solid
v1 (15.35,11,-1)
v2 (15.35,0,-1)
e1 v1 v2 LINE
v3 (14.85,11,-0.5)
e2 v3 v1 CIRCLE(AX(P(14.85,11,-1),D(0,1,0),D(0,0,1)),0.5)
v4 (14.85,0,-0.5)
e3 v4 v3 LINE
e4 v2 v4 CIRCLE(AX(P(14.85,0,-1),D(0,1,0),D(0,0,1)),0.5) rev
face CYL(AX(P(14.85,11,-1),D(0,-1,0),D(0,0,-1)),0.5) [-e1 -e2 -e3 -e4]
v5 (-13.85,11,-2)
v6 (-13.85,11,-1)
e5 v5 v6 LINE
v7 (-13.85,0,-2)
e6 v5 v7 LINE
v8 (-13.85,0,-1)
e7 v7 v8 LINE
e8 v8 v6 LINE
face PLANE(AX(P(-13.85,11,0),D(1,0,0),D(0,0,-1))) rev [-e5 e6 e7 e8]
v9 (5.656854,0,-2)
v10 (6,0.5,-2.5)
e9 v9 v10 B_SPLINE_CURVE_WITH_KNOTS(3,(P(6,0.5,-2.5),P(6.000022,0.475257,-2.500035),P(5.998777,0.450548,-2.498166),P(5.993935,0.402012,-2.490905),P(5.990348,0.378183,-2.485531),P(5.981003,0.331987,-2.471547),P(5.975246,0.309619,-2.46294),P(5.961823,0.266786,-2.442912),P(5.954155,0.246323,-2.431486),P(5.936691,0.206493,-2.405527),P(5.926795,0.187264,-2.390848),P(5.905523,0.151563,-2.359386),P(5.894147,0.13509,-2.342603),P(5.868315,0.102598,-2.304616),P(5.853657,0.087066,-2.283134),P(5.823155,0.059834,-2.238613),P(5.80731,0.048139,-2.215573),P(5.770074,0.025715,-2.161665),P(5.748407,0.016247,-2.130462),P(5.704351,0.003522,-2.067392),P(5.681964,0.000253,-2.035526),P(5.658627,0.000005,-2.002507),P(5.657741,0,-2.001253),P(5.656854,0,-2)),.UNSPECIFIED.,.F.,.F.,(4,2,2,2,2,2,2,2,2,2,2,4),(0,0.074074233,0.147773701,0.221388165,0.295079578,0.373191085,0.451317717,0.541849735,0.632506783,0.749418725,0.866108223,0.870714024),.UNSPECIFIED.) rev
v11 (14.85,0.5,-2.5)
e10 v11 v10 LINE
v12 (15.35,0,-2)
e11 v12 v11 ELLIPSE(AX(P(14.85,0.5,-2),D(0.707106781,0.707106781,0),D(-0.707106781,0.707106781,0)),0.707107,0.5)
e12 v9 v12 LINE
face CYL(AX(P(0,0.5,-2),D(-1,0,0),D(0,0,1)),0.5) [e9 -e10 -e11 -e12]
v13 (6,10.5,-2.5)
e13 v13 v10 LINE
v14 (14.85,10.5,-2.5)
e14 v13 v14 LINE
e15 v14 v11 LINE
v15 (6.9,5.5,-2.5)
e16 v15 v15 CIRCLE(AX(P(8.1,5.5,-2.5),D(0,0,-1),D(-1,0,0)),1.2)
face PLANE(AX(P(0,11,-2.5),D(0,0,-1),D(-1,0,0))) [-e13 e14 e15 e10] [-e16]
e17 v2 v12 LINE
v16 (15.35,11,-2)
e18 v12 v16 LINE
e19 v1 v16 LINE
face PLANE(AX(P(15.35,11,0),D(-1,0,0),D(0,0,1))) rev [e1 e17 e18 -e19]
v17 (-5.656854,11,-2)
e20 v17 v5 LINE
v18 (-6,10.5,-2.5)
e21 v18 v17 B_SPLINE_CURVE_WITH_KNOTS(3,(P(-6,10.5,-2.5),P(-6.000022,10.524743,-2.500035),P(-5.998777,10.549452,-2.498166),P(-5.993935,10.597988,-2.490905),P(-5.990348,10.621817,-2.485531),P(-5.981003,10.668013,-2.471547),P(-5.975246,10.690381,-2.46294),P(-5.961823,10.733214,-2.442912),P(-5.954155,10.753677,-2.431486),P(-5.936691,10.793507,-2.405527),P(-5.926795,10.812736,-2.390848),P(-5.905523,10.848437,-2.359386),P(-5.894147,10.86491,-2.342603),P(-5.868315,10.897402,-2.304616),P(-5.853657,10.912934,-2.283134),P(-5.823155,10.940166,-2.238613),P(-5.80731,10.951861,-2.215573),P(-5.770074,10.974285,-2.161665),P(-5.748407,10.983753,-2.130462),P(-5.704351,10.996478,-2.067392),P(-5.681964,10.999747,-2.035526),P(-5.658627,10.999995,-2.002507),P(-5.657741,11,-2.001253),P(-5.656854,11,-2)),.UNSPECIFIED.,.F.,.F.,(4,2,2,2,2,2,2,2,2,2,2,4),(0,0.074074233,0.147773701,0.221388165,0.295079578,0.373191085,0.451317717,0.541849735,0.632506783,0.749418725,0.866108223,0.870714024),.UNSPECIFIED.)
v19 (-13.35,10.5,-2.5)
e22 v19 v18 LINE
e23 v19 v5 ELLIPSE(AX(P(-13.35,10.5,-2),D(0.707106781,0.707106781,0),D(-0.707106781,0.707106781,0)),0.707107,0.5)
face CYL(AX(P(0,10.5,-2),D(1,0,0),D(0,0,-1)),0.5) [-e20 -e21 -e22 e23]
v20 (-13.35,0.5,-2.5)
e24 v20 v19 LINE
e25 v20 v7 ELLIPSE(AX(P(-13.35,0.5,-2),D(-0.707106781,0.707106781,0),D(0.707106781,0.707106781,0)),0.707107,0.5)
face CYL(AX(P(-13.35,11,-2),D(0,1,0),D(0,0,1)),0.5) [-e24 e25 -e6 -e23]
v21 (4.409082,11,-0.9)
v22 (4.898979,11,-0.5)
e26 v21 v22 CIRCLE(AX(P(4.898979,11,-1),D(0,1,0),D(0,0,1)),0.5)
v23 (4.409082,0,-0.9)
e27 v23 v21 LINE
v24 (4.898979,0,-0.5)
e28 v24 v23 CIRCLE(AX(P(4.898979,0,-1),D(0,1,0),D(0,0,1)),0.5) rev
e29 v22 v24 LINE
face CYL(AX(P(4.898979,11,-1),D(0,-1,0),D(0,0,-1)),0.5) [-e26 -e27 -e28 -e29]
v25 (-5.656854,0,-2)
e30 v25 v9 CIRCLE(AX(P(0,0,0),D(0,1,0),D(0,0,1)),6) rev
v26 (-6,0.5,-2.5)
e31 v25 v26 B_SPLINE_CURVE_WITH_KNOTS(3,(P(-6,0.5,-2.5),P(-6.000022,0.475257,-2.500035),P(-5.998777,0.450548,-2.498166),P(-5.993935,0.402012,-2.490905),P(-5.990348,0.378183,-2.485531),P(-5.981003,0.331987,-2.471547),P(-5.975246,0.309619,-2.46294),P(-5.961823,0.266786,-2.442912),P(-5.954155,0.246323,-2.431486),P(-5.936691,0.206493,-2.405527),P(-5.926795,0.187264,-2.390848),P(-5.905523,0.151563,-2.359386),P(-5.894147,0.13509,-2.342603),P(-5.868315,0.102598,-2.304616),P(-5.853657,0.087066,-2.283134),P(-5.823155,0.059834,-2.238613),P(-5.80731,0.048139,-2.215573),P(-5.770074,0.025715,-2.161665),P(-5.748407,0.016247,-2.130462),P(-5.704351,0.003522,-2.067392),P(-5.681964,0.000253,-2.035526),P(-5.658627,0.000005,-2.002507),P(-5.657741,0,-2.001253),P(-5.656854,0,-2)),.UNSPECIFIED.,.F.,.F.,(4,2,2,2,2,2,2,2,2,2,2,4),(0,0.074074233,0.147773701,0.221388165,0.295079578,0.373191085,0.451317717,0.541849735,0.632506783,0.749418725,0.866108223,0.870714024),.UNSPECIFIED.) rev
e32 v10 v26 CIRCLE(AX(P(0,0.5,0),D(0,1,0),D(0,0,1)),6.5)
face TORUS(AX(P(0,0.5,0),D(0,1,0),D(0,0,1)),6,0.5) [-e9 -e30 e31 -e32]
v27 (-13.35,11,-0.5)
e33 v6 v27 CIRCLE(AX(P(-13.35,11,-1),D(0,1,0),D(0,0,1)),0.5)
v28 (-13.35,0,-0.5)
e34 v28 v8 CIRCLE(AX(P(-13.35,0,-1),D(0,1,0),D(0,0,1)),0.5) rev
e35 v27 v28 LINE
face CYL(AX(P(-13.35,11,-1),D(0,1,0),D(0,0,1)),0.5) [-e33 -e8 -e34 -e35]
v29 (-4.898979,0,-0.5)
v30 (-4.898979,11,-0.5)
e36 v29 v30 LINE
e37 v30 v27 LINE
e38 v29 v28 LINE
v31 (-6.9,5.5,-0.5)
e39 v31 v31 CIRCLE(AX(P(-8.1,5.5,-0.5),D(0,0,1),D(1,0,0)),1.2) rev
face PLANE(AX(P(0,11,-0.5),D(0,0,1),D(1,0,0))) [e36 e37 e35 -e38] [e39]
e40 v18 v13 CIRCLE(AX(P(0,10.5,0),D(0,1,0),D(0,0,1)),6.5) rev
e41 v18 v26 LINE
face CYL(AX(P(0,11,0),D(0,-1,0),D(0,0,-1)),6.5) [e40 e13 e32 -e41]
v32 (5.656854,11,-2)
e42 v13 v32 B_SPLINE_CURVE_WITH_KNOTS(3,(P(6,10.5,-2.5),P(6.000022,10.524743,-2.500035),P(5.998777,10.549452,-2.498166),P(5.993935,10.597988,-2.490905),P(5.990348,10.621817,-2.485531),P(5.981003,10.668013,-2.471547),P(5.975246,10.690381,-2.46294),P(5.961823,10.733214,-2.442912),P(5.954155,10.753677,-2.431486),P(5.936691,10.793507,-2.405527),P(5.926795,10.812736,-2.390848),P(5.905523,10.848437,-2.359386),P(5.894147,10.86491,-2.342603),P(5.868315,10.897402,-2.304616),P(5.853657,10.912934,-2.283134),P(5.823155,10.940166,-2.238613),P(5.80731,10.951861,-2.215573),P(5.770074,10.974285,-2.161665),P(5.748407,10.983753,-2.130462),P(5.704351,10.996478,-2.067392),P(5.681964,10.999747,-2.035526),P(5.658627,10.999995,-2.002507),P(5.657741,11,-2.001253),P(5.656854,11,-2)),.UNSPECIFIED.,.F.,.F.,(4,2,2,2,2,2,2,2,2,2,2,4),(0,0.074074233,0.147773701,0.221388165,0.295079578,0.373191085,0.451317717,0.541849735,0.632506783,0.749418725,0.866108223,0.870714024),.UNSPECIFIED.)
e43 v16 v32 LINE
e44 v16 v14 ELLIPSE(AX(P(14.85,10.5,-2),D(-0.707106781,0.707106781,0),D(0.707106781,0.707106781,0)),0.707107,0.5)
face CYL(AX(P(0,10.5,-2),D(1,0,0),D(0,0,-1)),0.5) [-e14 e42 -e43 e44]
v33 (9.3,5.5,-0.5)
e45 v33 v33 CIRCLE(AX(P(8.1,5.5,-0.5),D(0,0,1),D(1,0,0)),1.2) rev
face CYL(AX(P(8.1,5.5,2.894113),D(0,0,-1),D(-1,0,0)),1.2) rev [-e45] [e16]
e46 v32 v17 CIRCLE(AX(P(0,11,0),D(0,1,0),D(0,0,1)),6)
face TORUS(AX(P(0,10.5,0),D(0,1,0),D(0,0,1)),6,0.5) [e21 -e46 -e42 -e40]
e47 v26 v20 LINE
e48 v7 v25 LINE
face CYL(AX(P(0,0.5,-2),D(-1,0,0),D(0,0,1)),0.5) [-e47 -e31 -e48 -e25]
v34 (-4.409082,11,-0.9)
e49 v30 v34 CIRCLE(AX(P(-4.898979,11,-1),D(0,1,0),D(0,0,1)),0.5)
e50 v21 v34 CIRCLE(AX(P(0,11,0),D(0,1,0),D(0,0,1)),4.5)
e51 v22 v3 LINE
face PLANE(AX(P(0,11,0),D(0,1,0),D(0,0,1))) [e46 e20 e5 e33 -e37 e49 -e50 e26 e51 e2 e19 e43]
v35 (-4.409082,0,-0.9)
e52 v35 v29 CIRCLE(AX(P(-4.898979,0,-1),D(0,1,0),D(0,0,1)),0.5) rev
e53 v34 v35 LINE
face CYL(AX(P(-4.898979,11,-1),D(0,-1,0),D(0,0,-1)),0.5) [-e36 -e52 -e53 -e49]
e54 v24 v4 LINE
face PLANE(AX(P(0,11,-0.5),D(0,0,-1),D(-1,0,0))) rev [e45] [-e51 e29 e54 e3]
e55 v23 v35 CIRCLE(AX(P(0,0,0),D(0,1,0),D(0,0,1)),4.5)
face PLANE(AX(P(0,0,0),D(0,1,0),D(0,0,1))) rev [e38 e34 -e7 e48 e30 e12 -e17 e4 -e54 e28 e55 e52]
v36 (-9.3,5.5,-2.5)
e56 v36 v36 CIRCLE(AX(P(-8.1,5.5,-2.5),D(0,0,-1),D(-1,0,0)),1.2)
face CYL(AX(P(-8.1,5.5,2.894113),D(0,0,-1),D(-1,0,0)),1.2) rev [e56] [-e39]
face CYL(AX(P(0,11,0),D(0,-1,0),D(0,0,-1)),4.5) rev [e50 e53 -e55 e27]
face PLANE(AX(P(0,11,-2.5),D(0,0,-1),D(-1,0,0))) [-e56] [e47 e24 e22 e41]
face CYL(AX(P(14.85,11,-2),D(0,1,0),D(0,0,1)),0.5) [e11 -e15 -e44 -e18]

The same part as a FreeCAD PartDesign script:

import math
import FreeCAD as App
import Part
import Sketcher
from FreeCAD import Vector
Q = App.Units.Quantity


def edges_at(feature, points):
    """Names of the edges that pass closest to the given points."""
    edges = feature.Shape.Edges
    near = lambda p: min(range(len(edges)), key=lambda i: edges[i].distToShape(Part.Vertex(*p))[0])
    return sorted({f"Edge{near(p) + 1}" for p in points})

doc = App.newDocument("Part")
params = doc.addObject("Spreadsheet::Sheet", "Params")
for row, (alias, value) in enumerate([
    ("sketch1_radius", "6.5 mm"),
    ("sketch1_radius2", "4.5 mm"),
    ("sketch1_height", "2 mm"),
    ("sketch1_width", "9.35 mm"),
    ("sketch1_width2", "7.85 mm"),
    ("pad1_length", "11 mm"),
    ("sketch2_diameter", "2.4 mm"),
    ("pocket1_length", "2 mm"),
    ("fillet_radius", "0.5 mm"),
], start=1):
    params.set(f"A{row}", alias)
    params.set(f"B{row}", "=" + value)
    params.setAlias(f"B{row}", alias)

body = doc.addObject("PartDesign::Body", "Body")

sketch1 = doc.addObject("Sketcher::SketchObject", "Sketch")
body.addObject(sketch1)
sketch1.AttachmentSupport = (doc.XZ_Plane, [""])
sketch1.MapMode = "FlatFace"
sketch1.addGeometry(Part.LineSegment(Vector(15.3, -2.5, 0), Vector(6, -2.5, 0)), False)
sketch1.addGeometry(Part.ArcOfCircle(Part.Circle(Vector(0, 0, 0), Vector(0, 0, 1), 6.5), math.radians(-157), math.radians(-23)), False)
sketch1.addGeometry(Part.LineSegment(Vector(-6, -2.5, 0), Vector(-13.8, -2.5, 0)), False)
sketch1.addGeometry(Part.LineSegment(Vector(-13.8, -2.5, 0), Vector(-13.8, -0.5, 0)), False)
sketch1.addGeometry(Part.LineSegment(Vector(-13.8, -0.5, 0), Vector(-4.5, -0.5, 0)), False)
sketch1.addGeometry(Part.ArcOfCircle(Part.Circle(Vector(0, 0, 0), Vector(0, 0, 1), 4.5), math.radians(-174), math.radians(-6)), False)
sketch1.addGeometry(Part.LineSegment(Vector(4.5, -0.5, 0), Vector(15.3, -0.5, 0)), False)
sketch1.addGeometry(Part.LineSegment(Vector(15.3, -0.5, 0), Vector(15.3, -2.5, 0)), False)
sketch1.addConstraint(Sketcher.Constraint("Coincident", 0, 2, 1, 2))
sketch1.addConstraint(Sketcher.Constraint("Coincident", 1, 1, 2, 1))
sketch1.addConstraint(Sketcher.Constraint("Coincident", 2, 2, 3, 1))
sketch1.addConstraint(Sketcher.Constraint("Coincident", 3, 2, 4, 1))
sketch1.addConstraint(Sketcher.Constraint("Coincident", 4, 2, 5, 1))
sketch1.addConstraint(Sketcher.Constraint("Coincident", 5, 2, 6, 1))
sketch1.addConstraint(Sketcher.Constraint("Coincident", 6, 2, 7, 1))
sketch1.addConstraint(Sketcher.Constraint("Coincident", 7, 2, 0, 1))
sketch1.addConstraint(Sketcher.Constraint("Horizontal", 0))
sketch1.addConstraint(Sketcher.Constraint("Horizontal", 2))
sketch1.addConstraint(Sketcher.Constraint("Vertical", 3))
sketch1.addConstraint(Sketcher.Constraint("Horizontal", 4))
sketch1.addConstraint(Sketcher.Constraint("Horizontal", 6))
sketch1.addConstraint(Sketcher.Constraint("Vertical", 7))
sketch1.addConstraint(Sketcher.Constraint("Coincident", 1, 3, -1, 1))
sketch1.addConstraint(Sketcher.Constraint("Coincident", 5, 3, -1, 1))
sketch1.addConstraint(Sketcher.Constraint("Horizontal", 0, 2, 1, 1))
sketch1.addConstraint(Sketcher.Constraint("Horizontal", 4, 2, 5, 2))
sketch1.addConstraint(Sketcher.Constraint("Radius", 1, Q("6.5 mm")))
sketch1.addConstraint(Sketcher.Constraint("Radius", 5, Q("4.5 mm")))
sketch1.addConstraint(Sketcher.Constraint("DistanceY", 3, 1, 3, 2, Q("2 mm")))
sketch1.addConstraint(Sketcher.Constraint("DistanceX", -1, 1, 0, 2, Q("6 mm")))
sketch1.addConstraint(Sketcher.Constraint("DistanceX", 0, 2, 0, 1, Q("9.35 mm")))
sketch1.addConstraint(Sketcher.Constraint("DistanceX", 2, 2, 2, 1, Q("7.85 mm")))
sketch1.setExpression("Constraints[18]", "Params.sketch1_radius")
sketch1.setExpression("Constraints[19]", "Params.sketch1_radius2")
sketch1.setExpression("Constraints[20]", "Params.sketch1_height")
sketch1.setExpression("Constraints[22]", "Params.sketch1_width")
sketch1.setExpression("Constraints[23]", "Params.sketch1_width2")
pad1 = doc.addObject("PartDesign::Pad", "Pad")
body.addObject(pad1)
pad1.Profile = sketch1
pad1.setExpression("Length", "Params.pad1_length")
pad1.Reversed = True

sketch2 = doc.addObject("Sketcher::SketchObject", "Sketch001")
body.addObject(sketch2)
sketch2.AttachmentSupport = (doc.XY_Plane, [""])
sketch2.MapMode = "FlatFace"
sketch2.AttachmentOffset = App.Placement(Vector(0, 0, -2.5), App.Rotation())
sketch2.addGeometry(Part.Circle(Vector(8.1, 5.5, 0), Vector(0, 0, 1), 1.2), False)
sketch2.addGeometry(Part.Circle(Vector(-8.1, 5.5, 0), Vector(0, 0, 1), 1.2), False)
sketch2.addConstraint(Sketcher.Constraint("Equal", 0, 1))
sketch2.addConstraint(Sketcher.Constraint("Symmetric", 0, 3, 1, 3, -2))
sketch2.addConstraint(Sketcher.Constraint("Diameter", 0, Q("2.4 mm")))
sketch2.addConstraint(Sketcher.Constraint("DistanceX", -1, 1, 0, 3, Q("8.1 mm")))
sketch2.addConstraint(Sketcher.Constraint("DistanceY", -1, 1, 0, 3, Q("5.5 mm")))
sketch2.setExpression("Constraints[2]", "Params.sketch2_diameter")
pocket1 = doc.addObject("PartDesign::Pocket", "Pocket")
body.addObject(pocket1)
pocket1.Profile = sketch2
pocket1.setExpression("Length", "Params.pocket1_length")
pocket1.Reversed = True
doc.recompute()

fillet = doc.addObject("PartDesign::Fillet", "Fillet")
body.addObject(fillet)
fillet.Base = (pocket1, edges_at(pocket1, [
    (0, 11, -6.5),
    (-9.925, 0, -2.5),
    (0, 0, -6.5),
    (10.675, 0, -2.5),
    (-9.925, 11, -2.5),
    (15.35, 5.5, -2.5),
    (15.35, 5.5, -0.5),
    (4.472, 5.5, -0.5),
    (-4.472, 5.5, -0.5),
    (-13.85, 5.5, -0.5),
    (-13.85, 5.5, -2.5),
    (10.675, 11, -2.5),
]))
fillet.setExpression("Radius", "Params.fillet_radius")

doc.recompute()
